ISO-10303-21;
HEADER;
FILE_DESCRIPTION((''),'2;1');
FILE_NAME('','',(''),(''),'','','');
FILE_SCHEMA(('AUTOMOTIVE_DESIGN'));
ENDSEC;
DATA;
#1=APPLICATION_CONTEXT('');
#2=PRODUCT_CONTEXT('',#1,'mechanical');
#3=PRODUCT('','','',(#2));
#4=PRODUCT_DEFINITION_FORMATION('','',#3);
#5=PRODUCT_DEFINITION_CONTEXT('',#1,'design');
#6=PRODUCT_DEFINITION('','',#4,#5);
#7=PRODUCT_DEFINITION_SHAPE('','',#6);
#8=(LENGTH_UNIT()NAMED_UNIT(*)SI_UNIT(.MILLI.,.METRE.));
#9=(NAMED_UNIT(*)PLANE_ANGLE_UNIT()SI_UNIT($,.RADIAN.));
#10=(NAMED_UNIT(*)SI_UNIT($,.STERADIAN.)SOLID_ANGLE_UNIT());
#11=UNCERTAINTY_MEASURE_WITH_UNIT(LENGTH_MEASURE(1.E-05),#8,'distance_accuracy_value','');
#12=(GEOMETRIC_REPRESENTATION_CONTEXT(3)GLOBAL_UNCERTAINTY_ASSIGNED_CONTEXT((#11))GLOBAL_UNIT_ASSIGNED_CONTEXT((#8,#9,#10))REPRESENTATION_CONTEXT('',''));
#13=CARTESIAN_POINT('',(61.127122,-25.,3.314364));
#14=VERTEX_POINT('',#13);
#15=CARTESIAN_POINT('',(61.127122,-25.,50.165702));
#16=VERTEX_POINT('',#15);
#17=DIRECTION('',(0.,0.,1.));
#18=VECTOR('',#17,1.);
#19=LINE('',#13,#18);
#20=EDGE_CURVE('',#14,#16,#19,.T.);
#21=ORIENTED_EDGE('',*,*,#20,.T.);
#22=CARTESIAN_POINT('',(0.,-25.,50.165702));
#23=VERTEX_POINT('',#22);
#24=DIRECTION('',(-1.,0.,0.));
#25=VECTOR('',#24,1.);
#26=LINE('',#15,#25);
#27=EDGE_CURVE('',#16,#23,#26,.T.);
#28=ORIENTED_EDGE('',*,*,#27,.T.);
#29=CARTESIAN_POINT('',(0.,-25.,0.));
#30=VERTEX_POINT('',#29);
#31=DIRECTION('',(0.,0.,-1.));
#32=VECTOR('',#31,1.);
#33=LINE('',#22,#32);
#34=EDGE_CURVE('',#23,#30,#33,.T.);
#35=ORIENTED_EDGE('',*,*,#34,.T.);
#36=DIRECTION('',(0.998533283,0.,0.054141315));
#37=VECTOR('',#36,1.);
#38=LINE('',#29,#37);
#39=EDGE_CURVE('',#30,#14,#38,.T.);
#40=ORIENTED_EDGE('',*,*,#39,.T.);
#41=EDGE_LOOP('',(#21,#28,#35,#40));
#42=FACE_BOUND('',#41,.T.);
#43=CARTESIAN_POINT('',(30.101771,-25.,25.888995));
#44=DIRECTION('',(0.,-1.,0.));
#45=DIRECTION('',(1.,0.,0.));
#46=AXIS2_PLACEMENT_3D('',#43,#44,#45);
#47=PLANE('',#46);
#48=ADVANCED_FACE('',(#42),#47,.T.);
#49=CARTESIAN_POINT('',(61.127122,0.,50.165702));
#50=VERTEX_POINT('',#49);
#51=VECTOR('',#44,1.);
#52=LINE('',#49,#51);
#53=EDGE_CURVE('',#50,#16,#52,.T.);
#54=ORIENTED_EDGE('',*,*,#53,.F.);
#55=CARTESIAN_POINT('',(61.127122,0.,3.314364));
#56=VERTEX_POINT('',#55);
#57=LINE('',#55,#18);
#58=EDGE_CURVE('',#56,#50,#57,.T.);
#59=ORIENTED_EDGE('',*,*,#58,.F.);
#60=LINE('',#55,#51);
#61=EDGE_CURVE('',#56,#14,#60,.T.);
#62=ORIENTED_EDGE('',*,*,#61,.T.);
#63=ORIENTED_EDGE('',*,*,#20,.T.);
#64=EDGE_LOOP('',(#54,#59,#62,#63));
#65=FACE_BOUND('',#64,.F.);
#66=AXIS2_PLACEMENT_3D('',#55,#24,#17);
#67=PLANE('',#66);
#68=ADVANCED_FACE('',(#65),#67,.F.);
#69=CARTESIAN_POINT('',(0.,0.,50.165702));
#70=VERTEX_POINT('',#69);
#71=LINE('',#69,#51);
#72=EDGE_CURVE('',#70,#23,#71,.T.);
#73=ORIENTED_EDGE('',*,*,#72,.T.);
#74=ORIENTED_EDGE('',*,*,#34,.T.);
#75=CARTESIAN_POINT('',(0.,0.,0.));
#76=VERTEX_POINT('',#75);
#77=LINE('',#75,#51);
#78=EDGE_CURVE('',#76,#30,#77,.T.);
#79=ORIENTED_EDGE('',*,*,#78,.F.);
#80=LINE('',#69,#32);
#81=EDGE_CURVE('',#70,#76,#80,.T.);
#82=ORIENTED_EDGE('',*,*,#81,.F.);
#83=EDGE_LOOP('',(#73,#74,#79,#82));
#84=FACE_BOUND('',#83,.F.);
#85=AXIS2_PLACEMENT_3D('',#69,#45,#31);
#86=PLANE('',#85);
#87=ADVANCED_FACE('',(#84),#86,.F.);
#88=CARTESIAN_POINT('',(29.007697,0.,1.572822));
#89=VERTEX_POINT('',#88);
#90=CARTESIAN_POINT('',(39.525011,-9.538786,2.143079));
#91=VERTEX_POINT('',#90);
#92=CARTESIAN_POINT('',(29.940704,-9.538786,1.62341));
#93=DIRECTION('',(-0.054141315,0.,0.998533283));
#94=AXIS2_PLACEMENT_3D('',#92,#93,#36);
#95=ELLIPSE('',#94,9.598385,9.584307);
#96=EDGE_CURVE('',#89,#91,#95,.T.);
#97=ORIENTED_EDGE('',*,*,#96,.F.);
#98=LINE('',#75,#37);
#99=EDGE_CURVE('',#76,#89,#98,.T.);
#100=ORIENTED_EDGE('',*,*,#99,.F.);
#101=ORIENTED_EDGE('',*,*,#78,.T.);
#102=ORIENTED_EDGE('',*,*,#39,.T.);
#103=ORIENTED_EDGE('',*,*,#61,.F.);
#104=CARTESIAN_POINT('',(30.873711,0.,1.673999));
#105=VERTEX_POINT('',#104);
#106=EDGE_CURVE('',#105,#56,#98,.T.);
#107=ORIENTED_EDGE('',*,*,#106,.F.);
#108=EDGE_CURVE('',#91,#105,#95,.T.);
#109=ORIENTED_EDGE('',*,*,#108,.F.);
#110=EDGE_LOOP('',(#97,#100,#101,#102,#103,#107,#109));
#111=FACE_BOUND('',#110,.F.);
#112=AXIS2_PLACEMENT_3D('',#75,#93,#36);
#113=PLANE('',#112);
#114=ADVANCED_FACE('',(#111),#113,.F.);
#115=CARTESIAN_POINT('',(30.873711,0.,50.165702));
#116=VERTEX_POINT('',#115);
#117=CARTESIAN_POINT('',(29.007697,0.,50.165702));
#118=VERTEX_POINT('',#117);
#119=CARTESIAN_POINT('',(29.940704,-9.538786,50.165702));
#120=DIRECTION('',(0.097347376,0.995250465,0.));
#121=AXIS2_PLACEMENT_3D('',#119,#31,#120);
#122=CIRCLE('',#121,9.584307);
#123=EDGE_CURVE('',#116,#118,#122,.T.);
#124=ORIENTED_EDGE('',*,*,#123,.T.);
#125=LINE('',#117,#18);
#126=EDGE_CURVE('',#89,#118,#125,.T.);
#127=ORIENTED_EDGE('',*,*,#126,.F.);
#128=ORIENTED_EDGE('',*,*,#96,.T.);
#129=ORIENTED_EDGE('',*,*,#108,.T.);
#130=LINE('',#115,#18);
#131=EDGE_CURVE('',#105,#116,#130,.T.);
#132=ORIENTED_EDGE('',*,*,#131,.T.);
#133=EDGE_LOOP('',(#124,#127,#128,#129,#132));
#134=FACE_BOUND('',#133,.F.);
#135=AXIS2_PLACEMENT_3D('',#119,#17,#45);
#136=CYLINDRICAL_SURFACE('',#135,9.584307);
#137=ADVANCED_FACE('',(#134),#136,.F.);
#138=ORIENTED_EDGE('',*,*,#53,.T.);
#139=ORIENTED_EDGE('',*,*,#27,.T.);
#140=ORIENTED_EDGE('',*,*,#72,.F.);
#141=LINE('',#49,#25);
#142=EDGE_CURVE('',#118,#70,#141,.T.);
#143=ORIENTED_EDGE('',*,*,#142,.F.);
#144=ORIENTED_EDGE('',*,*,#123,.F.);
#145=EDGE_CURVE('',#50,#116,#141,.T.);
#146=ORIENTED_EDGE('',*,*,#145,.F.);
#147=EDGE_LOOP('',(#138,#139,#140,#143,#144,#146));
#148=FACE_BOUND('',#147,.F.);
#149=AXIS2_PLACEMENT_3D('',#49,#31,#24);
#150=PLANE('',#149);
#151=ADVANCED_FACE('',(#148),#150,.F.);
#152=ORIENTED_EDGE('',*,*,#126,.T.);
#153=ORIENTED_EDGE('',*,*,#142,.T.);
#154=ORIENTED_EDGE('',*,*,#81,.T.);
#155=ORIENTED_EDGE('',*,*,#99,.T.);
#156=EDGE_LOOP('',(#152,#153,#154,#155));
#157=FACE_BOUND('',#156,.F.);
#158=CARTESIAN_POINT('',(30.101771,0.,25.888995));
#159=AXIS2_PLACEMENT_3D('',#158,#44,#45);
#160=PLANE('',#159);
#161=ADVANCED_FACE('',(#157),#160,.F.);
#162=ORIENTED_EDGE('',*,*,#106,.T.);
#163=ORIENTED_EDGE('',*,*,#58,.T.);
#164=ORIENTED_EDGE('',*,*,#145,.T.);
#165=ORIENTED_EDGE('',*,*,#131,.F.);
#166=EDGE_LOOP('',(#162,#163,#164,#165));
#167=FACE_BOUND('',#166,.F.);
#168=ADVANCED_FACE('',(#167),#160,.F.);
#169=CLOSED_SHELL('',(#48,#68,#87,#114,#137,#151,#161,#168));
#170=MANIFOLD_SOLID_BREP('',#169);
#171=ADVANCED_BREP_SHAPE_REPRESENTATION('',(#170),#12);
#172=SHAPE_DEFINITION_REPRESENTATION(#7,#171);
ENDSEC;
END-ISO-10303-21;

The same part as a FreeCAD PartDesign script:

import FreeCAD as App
import Part
import Sketcher
from FreeCAD import Vector


def add_polygon(sketch, points):
    """Adds a closed chain of lines whose ends are joined by coincident constraints."""
    first, n = sketch.GeometryCount, len(points)
    for a, b in zip(points, points[1:] + points[:1]):
        sketch.addGeometry(Part.LineSegment(App.Vector(*a, 0), App.Vector(*b, 0)), False)
    for i in range(n):
        sketch.addConstraint(Sketcher.Constraint("Coincident", first + i, 2, first + (i + 1) % n, 1))

doc = App.newDocument("Part")
body = doc.addObject("PartDesign::Body", "Body")

# Sketch on XZ plane
sketch1 = body.newObject("Sketcher::SketchObject", "Sketch")
sketch1.AttachmentSupport = (doc.getObject("XZ_Plane"), [""])
sketch1.MapMode = "FlatFace"
add_polygon(sketch1, [(0, 50.165702), (0, 0), (61.127122, 3.314364), (61.127122, 50.165702)])  # lines 0-3
sketch1.addConstraint([
    Sketcher.Constraint("Vertical", 0),
    Sketcher.Constraint("Vertical", 2),
    Sketcher.Constraint("Horizontal", 3),
    Sketcher.Constraint("Coincident", 0, 2, -1, 1),
    Sketcher.Constraint("DistanceY", 2, 1, 2, 2, 46.851338),
    Sketcher.Constraint("Distance", 1, 61.21691),
    Sketcher.Constraint("DistanceX", 3, 2, 3, 1, 61.127122),
])
pad1 = body.newObject("PartDesign::Pad", "Pad")
pad1.Profile = sketch1
pad1.Length = 25

# Sketch on XY plane
sketch2 = body.newObject("Sketcher::SketchObject", "Sketch001")
sketch2.AttachmentSupport = (doc.getObject("XY_Plane"), [""])
sketch2.MapMode = "FlatFace"
sketch2.AttachmentOffset = App.Placement(Vector(0, 0, 50.165702), App.Rotation())
sketch2.addGeometry(Part.Circle(Vector(29.940704, -9.538786, 0), Vector(0, 0, 1), 9.584307), False)
sketch2.addConstraint([
    Sketcher.Constraint("Diameter", 0, 19.168614),
    Sketcher.Constraint("DistanceX", -1, 1, 0, 3, 29.940704),
    Sketcher.Constraint("DistanceY", 0, 3, -1, 1, 9.538786),
])
pocket1 = body.newObject("PartDesign::Pocket", "Pocket")
pocket1.Profile = sketch2
pocket1.Length = 60

doc.recompute()
